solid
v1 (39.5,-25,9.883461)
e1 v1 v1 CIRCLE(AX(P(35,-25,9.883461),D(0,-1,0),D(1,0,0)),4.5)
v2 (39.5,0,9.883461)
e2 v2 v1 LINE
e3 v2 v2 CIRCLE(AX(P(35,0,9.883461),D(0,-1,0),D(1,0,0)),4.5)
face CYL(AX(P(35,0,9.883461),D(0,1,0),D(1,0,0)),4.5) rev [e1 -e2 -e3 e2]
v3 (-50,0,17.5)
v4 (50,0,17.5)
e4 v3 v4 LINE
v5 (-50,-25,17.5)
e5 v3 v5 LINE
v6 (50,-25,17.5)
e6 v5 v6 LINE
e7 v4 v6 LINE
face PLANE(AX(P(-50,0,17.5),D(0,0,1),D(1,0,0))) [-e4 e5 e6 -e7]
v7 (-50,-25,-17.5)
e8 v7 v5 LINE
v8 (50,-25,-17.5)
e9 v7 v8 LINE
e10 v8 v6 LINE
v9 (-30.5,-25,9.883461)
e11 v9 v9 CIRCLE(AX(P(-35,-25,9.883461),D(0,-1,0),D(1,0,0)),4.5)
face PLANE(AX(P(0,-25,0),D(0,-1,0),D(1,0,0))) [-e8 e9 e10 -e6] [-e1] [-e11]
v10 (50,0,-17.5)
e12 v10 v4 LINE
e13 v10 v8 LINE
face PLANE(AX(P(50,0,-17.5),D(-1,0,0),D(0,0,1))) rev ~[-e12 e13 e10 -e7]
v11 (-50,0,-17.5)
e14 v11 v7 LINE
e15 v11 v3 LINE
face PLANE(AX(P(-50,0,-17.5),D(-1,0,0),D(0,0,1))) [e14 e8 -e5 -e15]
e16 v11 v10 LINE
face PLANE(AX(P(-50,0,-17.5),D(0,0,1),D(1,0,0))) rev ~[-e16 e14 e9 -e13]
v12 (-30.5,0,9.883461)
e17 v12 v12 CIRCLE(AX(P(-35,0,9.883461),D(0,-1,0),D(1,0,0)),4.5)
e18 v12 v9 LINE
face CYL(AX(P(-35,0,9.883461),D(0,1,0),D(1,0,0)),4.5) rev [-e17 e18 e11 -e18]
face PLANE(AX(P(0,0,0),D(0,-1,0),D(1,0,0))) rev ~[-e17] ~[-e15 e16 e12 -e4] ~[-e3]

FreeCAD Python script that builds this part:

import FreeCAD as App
import Part
import Sketcher
from FreeCAD import Vector

doc = App.newDocument("Part")
body = doc.addObject("PartDesign::Body", "Body")

sketch1 = doc.addObject("Sketcher::SketchObject", "Sketch")
body.addObject(sketch1)
sketch1.AttachmentSupport = (doc.XZ_Plane, [""])
sketch1.MapMode = "FlatFace"
sketch1.addGeometry([
    Part.LineSegment(Vector(-50, 17.5, 0), Vector(-50, -17.5, 0)),
    Part.LineSegment(Vector(-50, -17.5, 0), Vector(50, -17.5, 0)),
    Part.LineSegment(Vector(50, -17.5, 0), Vector(50, 17.5, 0)),
    Part.LineSegment(Vector(50, 17.5, 0), Vector(-50, 17.5, 0)),
    Part.Circle(Vector(-35, 9.9, 0), Vector(0, 0, 1), 4.5),
    Part.Circle(Vector(35, 9.9, 0), Vector(0, 0, 1), 4.5),
], False)
sketch1.addConstraint([
    Sketcher.Constraint("Coincident", 0, 2, 1, 1),
    Sketcher.Constraint("Coincident", 1, 2, 2, 1),
    Sketcher.Constraint("Coincident", 2, 2, 3, 1),
    Sketcher.Constraint("Coincident", 3, 2, 0, 1),
    Sketcher.Constraint("Vertical", 0),
    Sketcher.Constraint("Horizontal", 1),
    Sketcher.Constraint("Vertical", 2),
    Sketcher.Constraint("Horizontal", 3),
    Sketcher.Constraint("Equal", 4, 5),
    Sketcher.Constraint("Symmetric", 0, 2, 2, 2, -1, 1),
    Sketcher.Constraint("Symmetric", 4, 3, 5, 3, -2),
    Sketcher.Constraint("Diameter", 4, 9.0),
    Sketcher.Constraint("DistanceX", 1, 1, 1, 2, 100.0),
    Sketcher.Constraint("DistanceY", 0, 2, 0, 1, 35.0),
    Sketcher.Constraint("DistanceX", 4, 3, -1, 1, 35.0),
    Sketcher.Constraint("DistanceY", -1, 1, 4, 3, 9.883461),
])
pad1 = doc.addObject("PartDesign::Pad", "Pad")
body.addObject(pad1)
pad1.Profile = sketch1
pad1.Length = 25

doc.recompute()
